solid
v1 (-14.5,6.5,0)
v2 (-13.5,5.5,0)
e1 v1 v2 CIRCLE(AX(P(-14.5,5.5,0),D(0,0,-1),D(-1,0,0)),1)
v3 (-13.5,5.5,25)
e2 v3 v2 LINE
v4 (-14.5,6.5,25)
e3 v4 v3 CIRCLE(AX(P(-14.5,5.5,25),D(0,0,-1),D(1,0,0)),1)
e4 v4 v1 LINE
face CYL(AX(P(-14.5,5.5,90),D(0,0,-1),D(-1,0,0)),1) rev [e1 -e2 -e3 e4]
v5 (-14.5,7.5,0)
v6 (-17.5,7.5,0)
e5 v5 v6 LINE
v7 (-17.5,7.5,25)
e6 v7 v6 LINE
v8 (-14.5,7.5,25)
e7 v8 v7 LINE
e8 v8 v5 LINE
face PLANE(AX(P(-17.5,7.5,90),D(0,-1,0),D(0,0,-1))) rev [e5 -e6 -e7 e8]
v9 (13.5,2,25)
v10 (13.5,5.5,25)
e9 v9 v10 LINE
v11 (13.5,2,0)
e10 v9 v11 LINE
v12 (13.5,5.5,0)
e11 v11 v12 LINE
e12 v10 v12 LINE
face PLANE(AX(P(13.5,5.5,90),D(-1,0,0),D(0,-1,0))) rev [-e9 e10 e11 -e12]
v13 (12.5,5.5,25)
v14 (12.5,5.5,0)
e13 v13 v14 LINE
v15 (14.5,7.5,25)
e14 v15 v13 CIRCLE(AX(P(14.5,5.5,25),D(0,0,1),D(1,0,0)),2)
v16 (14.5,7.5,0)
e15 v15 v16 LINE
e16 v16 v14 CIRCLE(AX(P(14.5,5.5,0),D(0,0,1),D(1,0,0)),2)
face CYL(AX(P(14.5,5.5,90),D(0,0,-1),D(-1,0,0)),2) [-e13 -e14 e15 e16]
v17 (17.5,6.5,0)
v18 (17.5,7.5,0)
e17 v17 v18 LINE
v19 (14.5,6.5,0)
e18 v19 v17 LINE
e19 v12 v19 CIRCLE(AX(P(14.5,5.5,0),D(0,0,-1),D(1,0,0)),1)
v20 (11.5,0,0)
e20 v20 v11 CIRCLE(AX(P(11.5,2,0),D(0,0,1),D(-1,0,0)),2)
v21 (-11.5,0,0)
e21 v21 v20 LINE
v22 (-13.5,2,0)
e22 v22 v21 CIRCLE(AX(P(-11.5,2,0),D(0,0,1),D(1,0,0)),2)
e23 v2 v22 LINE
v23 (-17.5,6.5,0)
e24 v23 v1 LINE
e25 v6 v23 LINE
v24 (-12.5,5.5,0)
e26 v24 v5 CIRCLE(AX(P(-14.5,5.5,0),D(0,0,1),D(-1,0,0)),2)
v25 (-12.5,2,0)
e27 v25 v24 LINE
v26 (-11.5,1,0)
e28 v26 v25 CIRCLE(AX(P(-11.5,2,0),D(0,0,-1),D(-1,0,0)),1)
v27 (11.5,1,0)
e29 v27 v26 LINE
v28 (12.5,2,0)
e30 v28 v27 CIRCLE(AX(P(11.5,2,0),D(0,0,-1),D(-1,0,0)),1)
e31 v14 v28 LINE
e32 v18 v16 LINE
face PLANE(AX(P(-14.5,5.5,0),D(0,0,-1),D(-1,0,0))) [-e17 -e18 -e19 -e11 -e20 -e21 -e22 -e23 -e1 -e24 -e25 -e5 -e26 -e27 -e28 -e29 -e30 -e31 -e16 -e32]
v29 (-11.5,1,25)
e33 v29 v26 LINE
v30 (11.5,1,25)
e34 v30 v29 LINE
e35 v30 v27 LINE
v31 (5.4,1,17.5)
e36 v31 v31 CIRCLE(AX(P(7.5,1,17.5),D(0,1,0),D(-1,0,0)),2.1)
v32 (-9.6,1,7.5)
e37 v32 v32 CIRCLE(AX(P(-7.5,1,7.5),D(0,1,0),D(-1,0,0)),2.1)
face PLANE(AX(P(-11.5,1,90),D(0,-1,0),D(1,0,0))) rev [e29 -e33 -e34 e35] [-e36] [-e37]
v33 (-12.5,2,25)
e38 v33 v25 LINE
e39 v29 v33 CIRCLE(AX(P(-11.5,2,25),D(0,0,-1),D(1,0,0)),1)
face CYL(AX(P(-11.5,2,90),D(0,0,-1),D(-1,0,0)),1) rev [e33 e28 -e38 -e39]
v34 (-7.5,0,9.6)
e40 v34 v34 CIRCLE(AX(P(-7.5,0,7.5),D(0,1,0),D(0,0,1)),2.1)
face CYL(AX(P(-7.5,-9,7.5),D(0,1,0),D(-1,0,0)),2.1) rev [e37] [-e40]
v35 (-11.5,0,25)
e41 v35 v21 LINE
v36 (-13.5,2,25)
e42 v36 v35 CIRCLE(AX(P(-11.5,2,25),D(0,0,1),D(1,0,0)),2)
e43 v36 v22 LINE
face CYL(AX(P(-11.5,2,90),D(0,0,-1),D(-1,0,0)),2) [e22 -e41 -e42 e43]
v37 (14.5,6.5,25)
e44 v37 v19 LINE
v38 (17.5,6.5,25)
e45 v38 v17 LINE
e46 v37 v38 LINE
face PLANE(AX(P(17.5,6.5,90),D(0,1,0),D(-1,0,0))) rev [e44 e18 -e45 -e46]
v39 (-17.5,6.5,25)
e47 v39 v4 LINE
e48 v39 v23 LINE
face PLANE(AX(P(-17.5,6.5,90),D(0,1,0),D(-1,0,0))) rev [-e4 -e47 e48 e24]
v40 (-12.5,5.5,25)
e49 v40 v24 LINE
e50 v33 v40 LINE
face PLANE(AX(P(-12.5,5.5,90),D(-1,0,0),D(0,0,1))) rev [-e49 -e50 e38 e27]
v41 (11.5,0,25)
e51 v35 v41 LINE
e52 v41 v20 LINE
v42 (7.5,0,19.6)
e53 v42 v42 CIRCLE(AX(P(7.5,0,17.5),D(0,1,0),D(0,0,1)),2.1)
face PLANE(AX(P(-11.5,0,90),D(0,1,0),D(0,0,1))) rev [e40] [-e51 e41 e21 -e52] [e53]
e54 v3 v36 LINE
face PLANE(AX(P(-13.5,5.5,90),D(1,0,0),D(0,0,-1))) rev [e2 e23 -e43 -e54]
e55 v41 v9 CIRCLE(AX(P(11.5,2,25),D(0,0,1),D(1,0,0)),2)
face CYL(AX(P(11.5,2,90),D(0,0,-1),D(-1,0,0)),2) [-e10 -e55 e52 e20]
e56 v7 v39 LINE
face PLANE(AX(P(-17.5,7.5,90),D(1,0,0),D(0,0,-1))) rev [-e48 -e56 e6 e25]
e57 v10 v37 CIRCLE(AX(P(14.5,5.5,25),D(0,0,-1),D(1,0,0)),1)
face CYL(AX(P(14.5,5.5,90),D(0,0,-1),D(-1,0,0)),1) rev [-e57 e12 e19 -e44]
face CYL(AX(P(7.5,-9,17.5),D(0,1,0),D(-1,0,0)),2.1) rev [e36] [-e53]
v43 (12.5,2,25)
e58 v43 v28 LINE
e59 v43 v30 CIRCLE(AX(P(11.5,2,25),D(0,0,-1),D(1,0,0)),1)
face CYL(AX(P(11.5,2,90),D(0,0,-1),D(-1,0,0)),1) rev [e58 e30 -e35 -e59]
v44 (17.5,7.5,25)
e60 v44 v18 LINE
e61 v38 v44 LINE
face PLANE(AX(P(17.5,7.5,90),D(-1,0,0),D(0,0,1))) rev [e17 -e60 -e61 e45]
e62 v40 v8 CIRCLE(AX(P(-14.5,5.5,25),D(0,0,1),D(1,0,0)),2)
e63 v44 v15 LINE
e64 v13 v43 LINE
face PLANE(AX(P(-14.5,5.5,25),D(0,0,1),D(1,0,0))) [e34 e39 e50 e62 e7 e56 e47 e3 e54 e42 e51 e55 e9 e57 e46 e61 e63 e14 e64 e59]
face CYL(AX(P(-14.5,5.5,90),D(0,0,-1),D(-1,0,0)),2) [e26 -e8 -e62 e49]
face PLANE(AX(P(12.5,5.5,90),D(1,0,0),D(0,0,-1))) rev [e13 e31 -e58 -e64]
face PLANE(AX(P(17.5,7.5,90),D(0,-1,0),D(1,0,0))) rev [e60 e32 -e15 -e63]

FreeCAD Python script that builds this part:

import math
import FreeCAD as App
import Part
import Sketcher
from FreeCAD import Vector

doc = App.newDocument("Part")
body = doc.addObject("PartDesign::Body", "Body")

# Sketch on XY plane
sketch1 = body.newObject("Sketcher::SketchObject", "Sketch")
sketch1.AttachmentSupport = (doc.getObject("XY_Plane"), [""])
sketch1.MapMode = "FlatFace"
sketch1.addGeometry([
    Part.LineSegment(Vector(-17.5, 6.5, 0), Vector(-14.5, 6.5, 0)),  # 0
    Part.ArcOfCircle(Part.Circle(Vector(-14.5, 5.5, 0), Vector(0, 0, 1), 1), math.radians(0), math.radians(90)),  # 1
    Part.LineSegment(Vector(-13.5, 5.5, 0), Vector(-13.5, 2, 0)),  # 2
    Part.ArcOfCircle(Part.Circle(Vector(-11.5, 2, 0), Vector(0, 0, 1), 2), math.radians(-180), math.radians(-90)),  # 3
    Part.LineSegment(Vector(-11.5, 0, 0), Vector(11.5, 0, 0)),  # 4
    Part.ArcOfCircle(Part.Circle(Vector(11.5, 2, 0), Vector(0, 0, 1), 2), math.radians(-90), math.radians(0)),  # 5
    Part.LineSegment(Vector(13.5, 2, 0), Vector(13.5, 5.5, 0)),  # 6
    Part.ArcOfCircle(Part.Circle(Vector(14.5, 5.5, 0), Vector(0, 0, 1), 1), math.radians(90), math.radians(180)),  # 7
    Part.LineSegment(Vector(14.5, 6.5, 0), Vector(17.5, 6.5, 0)),  # 8
    Part.LineSegment(Vector(17.5, 6.5, 0), Vector(17.5, 7.5, 0)),  # 9
    Part.LineSegment(Vector(17.5, 7.5, 0), Vector(14.5, 7.5, 0)),  # 10
    Part.ArcOfCircle(Part.Circle(Vector(14.5, 5.5, 0), Vector(0, 0, 1), 2), math.radians(90), math.radians(180)),  # 11
    Part.LineSegment(Vector(12.5, 5.5, 0), Vector(12.5, 2, 0)),  # 12
    Part.ArcOfCircle(Part.Circle(Vector(11.5, 2, 0), Vector(0, 0, 1), 1), math.radians(-90), math.radians(0)),  # 13
    Part.LineSegment(Vector(11.5, 1, 0), Vector(-11.5, 1, 0)),  # 14
    Part.ArcOfCircle(Part.Circle(Vector(-11.5, 2, 0), Vector(0, 0, 1), 1), math.radians(-180), math.radians(-90)),  # 15
    Part.LineSegment(Vector(-12.5, 2, 0), Vector(-12.5, 5.5, 0)),  # 16
    Part.ArcOfCircle(Part.Circle(Vector(-14.5, 5.5, 0), Vector(0, 0, 1), 2), math.radians(0), math.radians(90)),  # 17
    Part.LineSegment(Vector(-14.5, 7.5, 0), Vector(-17.5, 7.5, 0)),  # 18
    Part.LineSegment(Vector(-17.5, 7.5, 0), Vector(-17.5, 6.5, 0)),  # 19
], False)
sketch1.addConstraint([
    Sketcher.Constraint("Tangent", 0, 2, 1, 2),
    Sketcher.Constraint("Tangent", 1, 1, 2, 1),
    Sketcher.Constraint("Tangent", 2, 2, 3, 1),
    Sketcher.Constraint("Tangent", 3, 2, 4, 1),
    Sketcher.Constraint("Tangent", 4, 2, 5, 1),
    Sketcher.Constraint("Tangent", 5, 2, 6, 1),
    Sketcher.Constraint("Tangent", 6, 2, 7, 2),
    Sketcher.Constraint("Tangent", 7, 1, 8, 1),
    Sketcher.Constraint("Coincident", 8, 2, 9, 1),
    Sketcher.Constraint("Coincident", 9, 2, 10, 1),
    Sketcher.Constraint("Tangent", 10, 2, 11, 1),
    Sketcher.Constraint("Tangent", 11, 2, 12, 1),
    Sketcher.Constraint("Tangent", 12, 2, 13, 2),
    Sketcher.Constraint("Tangent", 13, 1, 14, 1),
    Sketcher.Constraint("Tangent", 14, 2, 15, 2),
    Sketcher.Constraint("Tangent", 15, 1, 16, 1),
    Sketcher.Constraint("Tangent", 16, 2, 17, 1),
    Sketcher.Constraint("Tangent", 17, 2, 18, 1),
    Sketcher.Constraint("Coincident", 18, 2, 19, 1),
    Sketcher.Constraint("Coincident", 19, 2, 0, 1),
    Sketcher.Constraint("Horizontal", 0),
    Sketcher.Constraint("Vertical", 2),
    Sketcher.Constraint("Horizontal", 4),
    Sketcher.Constraint("Vertical", 6),
    Sketcher.Constraint("Horizontal", 8),
    Sketcher.Constraint("Vertical", 9),
    Sketcher.Constraint("Horizontal", 10),
    Sketcher.Constraint("Vertical", 12),
    Sketcher.Constraint("Horizontal", 14),
    Sketcher.Constraint("Vertical", 16),
    Sketcher.Constraint("Horizontal", 18),
    Sketcher.Constraint("Vertical", 19),
    Sketcher.Constraint("Coincident", 11, 3, 7, 3),
    Sketcher.Constraint("Coincident", 13, 3, 5, 3),
    Sketcher.Constraint("Coincident", 15, 3, 3, 3),
    Sketcher.Constraint("Coincident", 17, 3, 1, 3),
    Sketcher.Constraint("Equal", 3, 5),
    Sketcher.Constraint("Equal", 1, 7),
    Sketcher.Constraint("Equal", 5, 11),
    Sketcher.Constraint("Symmetric", 3, 2, 4, 2, -1, 1),
    Sketcher.Constraint("Symmetric", 9, 2, 18, 2, -2),
    Sketcher.Constraint("Radius", 1, 1.0),
    Sketcher.Constraint("Radius", 3, 2.0),
    Sketcher.Constraint("DistanceX", 0, 1, 0, 2, 3.0),
    Sketcher.Constraint("DistanceX", 4, 1, 4, 2, 23.0),
    Sketcher.Constraint("DistanceY", 2, 2, 2, 1, 3.5),
])
pad1 = body.newObject("PartDesign::Pad", "Pad")
pad1.Profile = sketch1
pad1.Length = 90

# Sketch on XY plane
sketch2 = body.newObject("Sketcher::SketchObject", "Sketch001")
sketch2.AttachmentSupport = (doc.getObject("XY_Plane"), [""])
sketch2.MapMode = "FlatFace"
sketch2.AttachmentOffset = App.Placement(Vector(0, 0, 25), App.Rotation())
sketch2.addGeometry([
    Part.LineSegment(Vector(-17.5, 7.5, 0), Vector(-17.5, 6.5, 0)),  # 0
    Part.LineSegment(Vector(-17.5, 6.5, 0), Vector(-14.5, 6.5, 0)),  # 1
    Part.ArcOfCircle(Part.Circle(Vector(-14.5, 5.5, 0), Vector(0, 0, 1), 1), math.radians(0), math.radians(90)),  # 2
    Part.LineSegment(Vector(-13.5, 5.5, 0), Vector(-13.5, 2, 0)),  # 3
    Part.ArcOfCircle(Part.Circle(Vector(-11.5, 2, 0), Vector(0, 0, 1), 2), math.radians(-180), math.radians(-90)),  # 4
    Part.LineSegment(Vector(-11.5, 0, 0), Vector(11.5, 0, 0)),  # 5
    Part.ArcOfCircle(Part.Circle(Vector(11.5, 2, 0), Vector(0, 0, 1), 2), math.radians(-90), math.radians(0)),  # 6
    Part.LineSegment(Vector(13.5, 2, 0), Vector(13.5, 5.5, 0)),  # 7
    Part.ArcOfCircle(Part.Circle(Vector(14.5, 5.5, 0), Vector(0, 0, 1), 1), math.radians(90), math.radians(180)),  # 8
    Part.LineSegment(Vector(14.5, 6.5, 0), Vector(17.5, 6.5, 0)),  # 9
    Part.LineSegment(Vector(17.5, 6.5, 0), Vector(17.5, 7.5, 0)),  # 10
    Part.LineSegment(Vector(17.5, 7.5, 0), Vector(14.5, 7.5, 0)),  # 11
    Part.ArcOfCircle(Part.Circle(Vector(14.5, 5.5, 0), Vector(0, 0, 1), 2), math.radians(90), math.radians(180)),  # 12
    Part.LineSegment(Vector(12.5, 5.5, 0), Vector(12.5, 2, 0)),  # 13
    Part.ArcOfCircle(Part.Circle(Vector(11.5, 2, 0), Vector(0, 0, 1), 1), math.radians(-90), math.radians(0)),  # 14
    Part.LineSegment(Vector(11.5, 1, 0), Vector(-11.5, 1, 0)),  # 15
    Part.ArcOfCircle(Part.Circle(Vector(-11.5, 2, 0), Vector(0, 0, 1), 1), math.radians(-180), math.radians(-90)),  # 16
    Part.LineSegment(Vector(-12.5, 2, 0), Vector(-12.5, 5.5, 0)),  # 17
    Part.ArcOfCircle(Part.Circle(Vector(-14.5, 5.5, 0), Vector(0, 0, 1), 2), math.radians(0), math.radians(90)),  # 18
    Part.LineSegment(Vector(-14.5, 7.5, 0), Vector(-17.5, 7.5, 0)),  # 19
], False)
sketch2.addConstraint([
    Sketcher.Constraint("Coincident", 0, 2, 1, 1),
    Sketcher.Constraint("Tangent", 1, 2, 2, 2),
    Sketcher.Constraint("Tangent", 2, 1, 3, 1),
    Sketcher.Constraint("Tangent", 3, 2, 4, 1),
    Sketcher.Constraint("Tangent", 4, 2, 5, 1),
    Sketcher.Constraint("Tangent", 5, 2, 6, 1),
    Sketcher.Constraint("Tangent", 6, 2, 7, 1),
    Sketcher.Constraint("Tangent", 7, 2, 8, 2),
    Sketcher.Constraint("Tangent", 8, 1, 9, 1),
    Sketcher.Constraint("Coincident", 9, 2, 10, 1),
    Sketcher.Constraint("Coincident", 10, 2, 11, 1),
    Sketcher.Constraint("Tangent", 11, 2, 12, 1),
    Sketcher.Constraint("Tangent", 12, 2, 13, 1),
    Sketcher.Constraint("Tangent", 13, 2, 14, 2),
    Sketcher.Constraint("Tangent", 14, 1, 15, 1),
    Sketcher.Constraint("Tangent", 15, 2, 16, 2),
    Sketcher.Constraint("Tangent", 16, 1, 17, 1),
    Sketcher.Constraint("Tangent", 17, 2, 18, 1),
    Sketcher.Constraint("Tangent", 18, 2, 19, 1),
    Sketcher.Constraint("Coincident", 19, 2, 0, 1),
    Sketcher.Constraint("Vertical", 0),
    Sketcher.Constraint("Horizontal", 1),
    Sketcher.Constraint("Vertical", 3),
    Sketcher.Constraint("Horizontal", 5),
    Sketcher.Constraint("Vertical", 7),
    Sketcher.Constraint("Horizontal", 9),
    Sketcher.Constraint("Vertical", 10),
    Sketcher.Constraint("Horizontal", 11),
    Sketcher.Constraint("Vertical", 13),
    Sketcher.Constraint("Horizontal", 15),
    Sketcher.Constraint("Vertical", 17),
    Sketcher.Constraint("Horizontal", 19),
    Sketcher.Constraint("Coincident", 12, 3, 8, 3),
    Sketcher.Constraint("Coincident", 14, 3, 6, 3),
    Sketcher.Constraint("Coincident", 16, 3, 4, 3),
    Sketcher.Constraint("Coincident", 18, 3, 2, 3),
    Sketcher.Constraint("Equal", 4, 6),
    Sketcher.Constraint("Equal", 2, 8),
    Sketcher.Constraint("Equal", 6, 12),
    Sketcher.Constraint("Symmetric", 4, 2, 5, 2, -1, 1),
    Sketcher.Constraint("Symmetric", 0, 2, 9, 2, -2),
    Sketcher.Constraint("Radius", 2, 1.0),
    Sketcher.Constraint("Radius", 4, 2.0),
    Sketcher.Constraint("DistanceX", 1, 1, 1, 2, 3.0),
    Sketcher.Constraint("DistanceX", 5, 1, 5, 2, 23.0),
    Sketcher.Constraint("DistanceY", 3, 2, 3, 1, 3.5),
])
pocket1 = body.newObject("PartDesign::Pocket", "Pocket")
pocket1.Profile = sketch2
pocket1.Length = 65
pocket1.Reversed = True

# Sketch on XZ plane
sketch3 = body.newObject("Sketcher::SketchObject", "Sketch002")
sketch3.AttachmentSupport = (doc.getObject("XZ_Plane"), [""])
sketch3.MapMode = "FlatFace"
sketch3.AttachmentOffset = App.Placement(Vector(0, 0, -1), App.Rotation())
sketch3.addGeometry([
    Part.Circle(Vector(-7.5, 7.5, 0), Vector(0, 0, 1), 2.1),
    Part.Circle(Vector(7.5, 17.5, 0), Vector(0, 0, 1), 2.1),
], False)
sketch3.addConstraint([
    Sketcher.Constraint("Equal", 0, 1),
    Sketcher.Constraint("Diameter", 0, 4.2),
    Sketcher.Constraint("DistanceX", 0, 3, 1, 3, 15.0),
    Sketcher.Constraint("DistanceY", 0, 3, 1, 3, 10.0),
    Sketcher.Constraint("DistanceX", 0, 3, -1, 1, 7.5),
    Sketcher.Constraint("DistanceY", -1, 1, 0, 3, 7.5),
])
pocket2 = body.newObject("PartDesign::Pocket", "Pocket001")
pocket2.Profile = sketch3
pocket2.Length = 10
pocket2.Reversed = True

doc.recompute()
